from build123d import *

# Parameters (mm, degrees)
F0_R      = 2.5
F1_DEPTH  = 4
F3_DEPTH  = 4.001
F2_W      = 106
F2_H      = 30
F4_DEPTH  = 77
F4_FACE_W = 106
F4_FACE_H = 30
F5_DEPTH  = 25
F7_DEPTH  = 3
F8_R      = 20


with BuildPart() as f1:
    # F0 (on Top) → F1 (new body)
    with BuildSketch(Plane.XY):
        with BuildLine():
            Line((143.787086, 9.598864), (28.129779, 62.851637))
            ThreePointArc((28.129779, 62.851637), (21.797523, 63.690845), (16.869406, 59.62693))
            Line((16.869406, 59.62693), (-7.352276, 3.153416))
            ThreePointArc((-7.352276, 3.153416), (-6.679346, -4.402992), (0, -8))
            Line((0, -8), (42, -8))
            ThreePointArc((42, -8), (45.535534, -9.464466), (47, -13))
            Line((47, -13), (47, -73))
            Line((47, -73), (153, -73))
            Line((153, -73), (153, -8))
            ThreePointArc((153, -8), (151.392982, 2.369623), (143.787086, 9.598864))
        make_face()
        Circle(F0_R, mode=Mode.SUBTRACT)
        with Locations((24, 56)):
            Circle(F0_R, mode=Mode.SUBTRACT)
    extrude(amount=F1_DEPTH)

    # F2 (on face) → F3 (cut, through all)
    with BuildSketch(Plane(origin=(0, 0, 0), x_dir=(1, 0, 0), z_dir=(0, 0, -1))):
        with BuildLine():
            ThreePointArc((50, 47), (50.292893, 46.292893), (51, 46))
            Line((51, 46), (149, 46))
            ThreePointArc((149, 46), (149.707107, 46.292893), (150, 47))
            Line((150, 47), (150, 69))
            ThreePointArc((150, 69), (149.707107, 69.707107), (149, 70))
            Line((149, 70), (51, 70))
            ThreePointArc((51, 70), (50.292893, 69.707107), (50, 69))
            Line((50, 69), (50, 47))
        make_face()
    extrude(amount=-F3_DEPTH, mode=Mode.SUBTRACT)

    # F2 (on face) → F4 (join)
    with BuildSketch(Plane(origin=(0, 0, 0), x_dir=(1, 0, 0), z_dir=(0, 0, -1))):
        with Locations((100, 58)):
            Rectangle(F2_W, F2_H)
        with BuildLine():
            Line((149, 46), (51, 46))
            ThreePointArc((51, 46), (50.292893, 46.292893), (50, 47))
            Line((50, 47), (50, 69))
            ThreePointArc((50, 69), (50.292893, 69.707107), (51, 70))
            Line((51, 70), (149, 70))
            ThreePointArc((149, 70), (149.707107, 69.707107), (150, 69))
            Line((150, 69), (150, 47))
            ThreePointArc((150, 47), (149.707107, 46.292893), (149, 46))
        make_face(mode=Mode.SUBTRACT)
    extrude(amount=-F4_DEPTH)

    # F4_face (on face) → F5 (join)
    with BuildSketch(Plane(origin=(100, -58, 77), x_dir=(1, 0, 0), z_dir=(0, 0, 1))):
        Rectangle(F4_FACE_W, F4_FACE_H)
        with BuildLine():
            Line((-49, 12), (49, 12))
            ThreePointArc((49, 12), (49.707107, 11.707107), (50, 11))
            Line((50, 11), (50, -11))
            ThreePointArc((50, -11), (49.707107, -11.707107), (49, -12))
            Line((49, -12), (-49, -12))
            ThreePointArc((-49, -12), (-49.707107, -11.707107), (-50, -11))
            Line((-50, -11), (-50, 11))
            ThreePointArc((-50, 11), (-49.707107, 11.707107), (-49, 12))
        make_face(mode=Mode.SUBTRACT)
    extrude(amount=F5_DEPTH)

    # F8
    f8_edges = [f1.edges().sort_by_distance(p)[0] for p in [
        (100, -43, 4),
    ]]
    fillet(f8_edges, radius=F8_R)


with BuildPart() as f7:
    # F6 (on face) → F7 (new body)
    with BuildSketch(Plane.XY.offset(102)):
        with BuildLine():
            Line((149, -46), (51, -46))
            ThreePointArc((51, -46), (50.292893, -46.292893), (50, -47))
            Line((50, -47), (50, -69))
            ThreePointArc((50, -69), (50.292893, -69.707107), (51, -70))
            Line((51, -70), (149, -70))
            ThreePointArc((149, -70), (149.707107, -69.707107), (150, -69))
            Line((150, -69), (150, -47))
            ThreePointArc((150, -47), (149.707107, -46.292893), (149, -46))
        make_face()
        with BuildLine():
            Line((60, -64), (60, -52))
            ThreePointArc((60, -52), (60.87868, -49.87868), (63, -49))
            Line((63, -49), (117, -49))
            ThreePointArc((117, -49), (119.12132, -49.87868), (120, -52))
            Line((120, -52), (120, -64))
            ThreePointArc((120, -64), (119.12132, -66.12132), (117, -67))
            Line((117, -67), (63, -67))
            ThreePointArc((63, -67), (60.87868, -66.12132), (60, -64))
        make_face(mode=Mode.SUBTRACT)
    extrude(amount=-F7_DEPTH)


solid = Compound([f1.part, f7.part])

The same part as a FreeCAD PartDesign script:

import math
import FreeCAD as App
import Part
import Sketcher


def edges_at(feature, points):
    """Names of the edges that pass closest to the given points."""
    edges = feature.Shape.Edges
    near = lambda p: min(range(len(edges)), key=lambda i: edges[i].distToShape(Part.Vertex(*p))[0])
    return sorted({f"Edge{near(p) + 1}" for p in points})


def add_polygon(sketch, points):
    """Adds a closed chain of lines whose ends are joined by coincident constraints."""
    first, n = sketch.GeometryCount, len(points)
    for a, b in zip(points, points[1:] + points[:1]):
        sketch.addGeometry(Part.LineSegment(App.Vector(*a, 0), App.Vector(*b, 0)), False)
    for i in range(n):
        sketch.addConstraint(Sketcher.Constraint("Coincident", first + i, 2, first + (i + 1) % n, 1))

doc = App.newDocument("Part")
body = doc.addObject("PartDesign::Body", "Body")

# Sketch on XY plane
sketch1 = body.newObject("Sketcher::SketchObject", "Sketch")
sketch1.AttachmentSupport = (doc.getObject("XY_Plane"), [""])
sketch1.MapMode = "FlatFace"
sketch1.addGeometry([
    Part.LineSegment(App.Vector(143.8, 9.6, 0), App.Vector(28.1, 62.9, 0)),  # 0
    Part.ArcOfCircle(Part.Circle(App.Vector(24, 56, 0), App.Vector(0, 0, 1), 8), math.radians(59), math.radians(153)),  # 1
    Part.LineSegment(App.Vector(16.9, 59.6, 0), App.Vector(-7.4, 3.2, 0)),  # 2
    Part.ArcOfCircle(Part.Circle(App.Vector(0, 0, 0), App.Vector(0, 0, 1), 8), math.radians(157), math.radians(270)),  # 3
    Part.LineSegment(App.Vector(0, -8, 0), App.Vector(42, -8, 0)),  # 4
    Part.ArcOfCircle(Part.Circle(App.Vector(42, -13, 0), App.Vector(0, 0, 1), 5), math.radians(0), math.radians(90)),  # 5
    Part.LineSegment(App.Vector(47, -13, 0), App.Vector(47, -73, 0)),  # 6
    Part.LineSegment(App.Vector(47, -73, 0), App.Vector(153, -73, 0)),  # 7
    Part.LineSegment(App.Vector(153, -73, 0), App.Vector(153, -8, 0)),  # 8
    Part.ArcOfCircle(Part.Circle(App.Vector(137, -5.2, 0), App.Vector(0, 0, 1), 16.3), math.radians(-10), math.radians(65)),  # 9
    Part.Circle(App.Vector(0, 0, 0), App.Vector(0, 0, 1), 2.5),  # 10
    Part.Circle(App.Vector(24, 56, 0), App.Vector(0, 0, 1), 2.5),  # 11
], False)
sketch1.addConstraint([
    Sketcher.Constraint("Coincident", 0, 2, 1, 1),
    Sketcher.Constraint("Coincident", 1, 2, 2, 1),
    Sketcher.Constraint("Tangent", 2, 2, 3, 1),
    Sketcher.Constraint("Tangent", 3, 2, 4, 1),
    Sketcher.Constraint("Tangent", 4, 2, 5, 2),
    Sketcher.Constraint("Tangent", 5, 1, 6, 1),
    Sketcher.Constraint("Coincident", 6, 2, 7, 1),
    Sketcher.Constraint("Coincident", 7, 2, 8, 1),
    Sketcher.Constraint("Coincident", 8, 2, 9, 1),
    Sketcher.Constraint("Tangent", 9, 2, 0, 1),
    Sketcher.Constraint("Horizontal", 4),
    Sketcher.Constraint("Vertical", 6),
    Sketcher.Constraint("Horizontal", 7),
    Sketcher.Constraint("Vertical", 8),
    Sketcher.Constraint("Coincident", 3, 3, -1, 1),
    Sketcher.Constraint("Coincident", 10, 3, -1, 1),
    Sketcher.Constraint("Coincident", 11, 3, 1, 3),
    Sketcher.Constraint("Equal", 1, 3),
    Sketcher.Constraint("Equal", 10, 11),
    Sketcher.Constraint("Horizontal", 4, 2, 8, 2),
    Sketcher.Constraint("Diameter", 10, 5.0),
    Sketcher.Constraint("Radius", 1, 7.999999),
    Sketcher.Constraint("Radius", 5, 5.0),
    Sketcher.Constraint("DistanceX", 4, 1, 4, 2, 42.0),
    Sketcher.Constraint("DistanceX", 7, 1, 7, 2, 106.0),
    Sketcher.Constraint("DistanceY", 6, 2, 6, 1, 60.0),
    Sketcher.Constraint("DistanceX", -1, 1, 1, 3, 24.0),
    Sketcher.Constraint("DistanceY", -1, 1, 1, 3, 56.000001),
    Sketcher.Constraint("Radius", 9, 16.261862),
    Sketcher.Constraint("Distance", 0, 127.3282),
    Sketcher.Constraint("DistanceY", 9, 3, 9, 2, 14.771301),
    Sketcher.Constraint("Distance", 2, 61.44874),
])
pad1 = body.newObject("PartDesign::Pad", "Pad")
pad1.Profile = sketch1
pad1.Length = 4

# Sketch on XY plane
sketch2 = body.newObject("Sketcher::SketchObject", "Sketch001")
sketch2.AttachmentSupport = (doc.getObject("XY_Plane"), [""])
sketch2.MapMode = "FlatFace"
sketch2.addGeometry([
    Part.ArcOfCircle(Part.Circle(App.Vector(51, -47, 0), App.Vector(0, 0, 1), 1), math.radians(90), math.radians(180)),  # 0
    Part.LineSegment(App.Vector(51, -46, 0), App.Vector(149, -46, 0)),  # 1
    Part.ArcOfCircle(Part.Circle(App.Vector(149, -47, 0), App.Vector(0, 0, 1), 1), math.radians(0), math.radians(90)),  # 2
    Part.LineSegment(App.Vector(150, -47, 0), App.Vector(150, -69, 0)),  # 3
    Part.ArcOfCircle(Part.Circle(App.Vector(149, -69, 0), App.Vector(0, 0, 1), 1), math.radians(-90), math.radians(0)),  # 4
    Part.LineSegment(App.Vector(149, -70, 0), App.Vector(51, -70, 0)),  # 5
    Part.ArcOfCircle(Part.Circle(App.Vector(51, -69, 0), App.Vector(0, 0, 1), 1), math.radians(180), math.radians(270)),  # 6
    Part.LineSegment(App.Vector(50, -69, 0), App.Vector(50, -47, 0)),  # 7
], False)
sketch2.addConstraint([
    Sketcher.Constraint("Tangent", 0, 1, 1, 1),
    Sketcher.Constraint("Tangent", 1, 2, 2, 2),
    Sketcher.Constraint("Tangent", 2, 1, 3, 1),
    Sketcher.Constraint("Tangent", 3, 2, 4, 2),
    Sketcher.Constraint("Tangent", 4, 1, 5, 1),
    Sketcher.Constraint("Tangent", 5, 2, 6, 2),
    Sketcher.Constraint("Tangent", 6, 1, 7, 1),
    Sketcher.Constraint("Tangent", 7, 2, 0, 2),
    Sketcher.Constraint("Horizontal", 1),
    Sketcher.Constraint("Vertical", 3),
    Sketcher.Constraint("Horizontal", 5),
    Sketcher.Constraint("Vertical", 7),
    Sketcher.Constraint("Equal", 0, 2),
    Sketcher.Constraint("Equal", 2, 4),
    Sketcher.Constraint("Equal", 4, 6),
    Sketcher.Constraint("Radius", 0, 0.999999),
    Sketcher.Constraint("DistanceX", 1, 1, 1, 2, 98.0),
    Sketcher.Constraint("DistanceY", 3, 2, 3, 1, 22.0),
    Sketcher.Constraint("DistanceX", -1, 1, 0, 3, 50.999999),
    Sketcher.Constraint("DistanceY", 0, 3, -1, 1, 46.999999),
])
pocket1 = body.newObject("PartDesign::Pocket", "Pocket")
pocket1.Profile = sketch2
pocket1.Type = "ThroughAll"
pocket1.Reversed = True

# Sketch on XY plane
sketch3 = body.newObject("Sketcher::SketchObject", "Sketch002")
sketch3.AttachmentSupport = (doc.getObject("XY_Plane"), [""])
sketch3.MapMode = "FlatFace"
add_polygon(sketch3, [(47, -73), (47, -43), (153, -43), (153, -73)])  # lines 0-3
sketch3.addGeometry(Part.ArcOfCircle(Part.Circle(App.Vector(149, -47, 0), App.Vector(0, 0, 1), 1), math.radians(0), math.radians(90)), False)  # 4
sketch3.addGeometry(Part.LineSegment(App.Vector(149, -46, 0), App.Vector(51, -46, 0)), False)  # 5
sketch3.addGeometry(Part.ArcOfCircle(Part.Circle(App.Vector(51, -47, 0), App.Vector(0, 0, 1), 1), math.radians(90), math.radians(180)), False)  # 6
sketch3.addGeometry(Part.LineSegment(App.Vector(50, -47, 0), App.Vector(50, -69, 0)), False)  # 7
sketch3.addGeometry(Part.ArcOfCircle(Part.Circle(App.Vector(51, -69, 0), App.Vector(0, 0, 1), 1), math.radians(180), math.radians(270)), False)  # 8
sketch3.addGeometry(Part.LineSegment(App.Vector(51, -70, 0), App.Vector(149, -70, 0)), False)  # 9
sketch3.addGeometry(Part.ArcOfCircle(Part.Circle(App.Vector(149, -69, 0), App.Vector(0, 0, 1), 1), math.radians(-90), math.radians(0)), False)  # 10
sketch3.addGeometry(Part.LineSegment(App.Vector(150, -69, 0), App.Vector(150, -47, 0)), False)  # 11
sketch3.addConstraint([
    Sketcher.Constraint("Tangent", 4, 2, 5, 1),
    Sketcher.Constraint("Tangent", 5, 2, 6, 1),
    Sketcher.Constraint("Tangent", 6, 2, 7, 1),
    Sketcher.Constraint("Tangent", 7, 2, 8, 1),
    Sketcher.Constraint("Tangent", 8, 2, 9, 1),
    Sketcher.Constraint("Tangent", 9, 2, 10, 1),
    Sketcher.Constraint("Tangent", 10, 2, 11, 1),
    Sketcher.Constraint("Tangent", 11, 2, 4, 1),
    Sketcher.Constraint("Vertical", 0),
    Sketcher.Constraint("Horizontal", 1),
    Sketcher.Constraint("Vertical", 2),
    Sketcher.Constraint("Horizontal", 3),
    Sketcher.Constraint("Horizontal", 5),
    Sketcher.Constraint("Vertical", 7),
    Sketcher.Constraint("Horizontal", 9),
    Sketcher.Constraint("Vertical", 11),
    Sketcher.Constraint("Equal", 4, 6),
    Sketcher.Constraint("Equal", 6, 8),
    Sketcher.Constraint("Equal", 8, 10),
    Sketcher.Constraint("Radius", 4, 0.999999),
    Sketcher.Constraint("DistanceX", 1, 1, 1, 2, 106.0),
    Sketcher.Constraint("DistanceX", 5, 2, 5, 1, 98.0),
    Sketcher.Constraint("DistanceY", 0, 1, 0, 2, 30.0),
    Sketcher.Constraint("DistanceY", 7, 2, 7, 1, 22.0),
    Sketcher.Constraint("DistanceX", -1, 1, 4, 3, 149.000001),
    Sketcher.Constraint("DistanceY", 4, 3, -1, 1, 46.999999),
    Sketcher.Constraint("DistanceX", -1, 1, 0, 2, 47.0),
    Sketcher.Constraint("DistanceY", 0, 2, -1, 1, 43.0),
])
pad2 = body.newObject("PartDesign::Pad", "Pad001")
pad2.Profile = sketch3
pad2.Length = 77

# Sketch on XY plane
sketch4 = body.newObject("Sketcher::SketchObject", "Sketch003")
sketch4.AttachmentSupport = (doc.getObject("XY_Plane"), [""])
sketch4.MapMode = "FlatFace"
sketch4.AttachmentOffset = App.Placement(App.Vector(0, 0, 77), App.Rotation())
add_polygon(sketch4, [(47, -43), (47, -73), (153, -73), (153, -43)])  # lines 0-3
sketch4.addGeometry(Part.ArcOfCircle(Part.Circle(App.Vector(51, -47, 0), App.Vector(0, 0, 1), 1), math.radians(90), math.radians(180)), False)  # 4
sketch4.addGeometry(Part.LineSegment(App.Vector(51, -46, 0), App.Vector(149, -46, 0)), False)  # 5
sketch4.addGeometry(Part.ArcOfCircle(Part.Circle(App.Vector(149, -47, 0), App.Vector(0, 0, 1), 1), math.radians(0), math.radians(90)), False)  # 6
sketch4.addGeometry(Part.LineSegment(App.Vector(150, -47, 0), App.Vector(150, -69, 0)), False)  # 7
sketch4.addGeometry(Part.ArcOfCircle(Part.Circle(App.Vector(149, -69, 0), App.Vector(0, 0, 1), 1), math.radians(-90), math.radians(0)), False)  # 8
sketch4.addGeometry(Part.LineSegment(App.Vector(149, -70, 0), App.Vector(51, -70, 0)), False)  # 9
sketch4.addGeometry(Part.ArcOfCircle(Part.Circle(App.Vector(51, -69, 0), App.Vector(0, 0, 1), 1), math.radians(180), math.radians(270)), False)  # 10
sketch4.addGeometry(Part.LineSegment(App.Vector(50, -69, 0), App.Vector(50, -47, 0)), False)  # 11
sketch4.addConstraint([
    Sketcher.Constraint("Tangent", 4, 1, 5, 1),
    Sketcher.Constraint("Tangent", 5, 2, 6, 2),
    Sketcher.Constraint("Tangent", 6, 1, 7, 1),
    Sketcher.Constraint("Tangent", 7, 2, 8, 2),
    Sketcher.Constraint("Tangent", 8, 1, 9, 1),
    Sketcher.Constraint("Tangent", 9, 2, 10, 2),
    Sketcher.Constraint("Tangent", 10, 1, 11, 1),
    Sketcher.Constraint("Tangent", 11, 2, 4, 2),
    Sketcher.Constraint("Vertical", 0),
    Sketcher.Constraint("Horizontal", 1),
    Sketcher.Constraint("Vertical", 2),
    Sketcher.Constraint("Horizontal", 3),
    Sketcher.Constraint("Horizontal", 5),
    Sketcher.Constraint("Vertical", 7),
    Sketcher.Constraint("Horizontal", 9),
    Sketcher.Constraint("Vertical", 11),
    Sketcher.Constraint("Equal", 4, 6),
    Sketcher.Constraint("Equal", 6, 8),
    Sketcher.Constraint("Equal", 8, 10),
    Sketcher.Constraint("Radius", 4, 0.999999),
    Sketcher.Constraint("DistanceX", 1, 1, 1, 2, 106.0),
    Sketcher.Constraint("DistanceX", 5, 1, 5, 2, 98.0),
    Sketcher.Constraint("DistanceY", 0, 2, 0, 1, 30.0),
    Sketcher.Constraint("DistanceY", 7, 2, 7, 1, 22.0),
    Sketcher.Constraint("DistanceX", -1, 1, 4, 3, 50.999999),
    Sketcher.Constraint("DistanceY", 4, 3, -1, 1, 46.999999),
    Sketcher.Constraint("DistanceX", -1, 1, 0, 2, 47.0),
    Sketcher.Constraint("DistanceY", 0, 2, -1, 1, 73.0),
])
pad3 = body.newObject("PartDesign::Pad", "Pad002")
pad3.Profile = sketch4
pad3.Length = 25
doc.recompute()

fillet = body.newObject("PartDesign::Fillet", "Fillet")
fillet.Base = (pad3, edges_at(pad3, [(100, -43, 4)]))
fillet.Radius = 20
body2 = doc.addObject("PartDesign::Body", "Body001")

# Sketch on XY plane
sketch5 = body2.newObject("Sketcher::SketchObject", "Sketch004")
sketch5.AttachmentSupport = (doc.getObject("XY_Plane001"), [""])
sketch5.MapMode = "FlatFace"
sketch5.AttachmentOffset = App.Placement(App.Vector(0, 0, 102), App.Rotation())
sketch5.addGeometry([
    Part.LineSegment(App.Vector(149, -46, 0), App.Vector(51, -46, 0)),  # 0
    Part.ArcOfCircle(Part.Circle(App.Vector(51, -47, 0), App.Vector(0, 0, 1), 1), math.radians(90), math.radians(180)),  # 1
    Part.LineSegment(App.Vector(50, -47, 0), App.Vector(50, -69, 0)),  # 2
    Part.ArcOfCircle(Part.Circle(App.Vector(51, -69, 0), App.Vector(0, 0, 1), 1), math.radians(180), math.radians(270)),  # 3
    Part.LineSegment(App.Vector(51, -70, 0), App.Vector(149, -70, 0)),  # 4
    Part.ArcOfCircle(Part.Circle(App.Vector(149, -69, 0), App.Vector(0, 0, 1), 1), math.radians(-90), math.radians(0)),  # 5
    Part.LineSegment(App.Vector(150, -69, 0), App.Vector(150, -47, 0)),  # 6
    Part.ArcOfCircle(Part.Circle(App.Vector(149, -47, 0), App.Vector(0, 0, 1), 1), math.radians(0), math.radians(90)),  # 7
    Part.ArcOfCircle(Part.Circle(App.Vector(63, -64, 0), App.Vector(0, 0, 1), 3), math.radians(-180), math.radians(-90)),  # 8
    Part.LineSegment(App.Vector(60, -64, 0), App.Vector(60, -52, 0)),  # 9
    Part.ArcOfCircle(Part.Circle(App.Vector(63, -52, 0), App.Vector(0, 0, 1), 3), math.radians(90), math.radians(180)),  # 10
    Part.LineSegment(App.Vector(63, -49, 0), App.Vector(117, -49, 0)),  # 11
    Part.ArcOfCircle(Part.Circle(App.Vector(117, -52, 0), App.Vector(0, 0, 1), 3), math.radians(0), math.radians(90)),  # 12
    Part.LineSegment(App.Vector(120, -52, 0), App.Vector(120, -64, 0)),  # 13
    Part.ArcOfCircle(Part.Circle(App.Vector(117, -64, 0), App.Vector(0, 0, 1), 3), math.radians(-90), math.radians(0)),  # 14
    Part.LineSegment(App.Vector(117, -67, 0), App.Vector(63, -67, 0)),  # 15
], False)
sketch5.addConstraint([
    Sketcher.Constraint("Tangent", 0, 2, 1, 1),
    Sketcher.Constraint("Tangent", 1, 2, 2, 1),
    Sketcher.Constraint("Tangent", 2, 2, 3, 1),
    Sketcher.Constraint("Tangent", 3, 2, 4, 1),
    Sketcher.Constraint("Tangent", 4, 2, 5, 1),
    Sketcher.Constraint("Tangent", 5, 2, 6, 1),
    Sketcher.Constraint("Tangent", 6, 2, 7, 1),
    Sketcher.Constraint("Tangent", 7, 2, 0, 1),
    Sketcher.Constraint("Tangent", 8, 1, 9, 1),
    Sketcher.Constraint("Tangent", 9, 2, 10, 2),
    Sketcher.Constraint("Tangent", 10, 1, 11, 1),
    Sketcher.Constraint("Tangent", 11, 2, 12, 2),
    Sketcher.Constraint("Tangent", 12, 1, 13, 1),
    Sketcher.Constraint("Tangent", 13, 2, 14, 2),
    Sketcher.Constraint("Tangent", 14, 1, 15, 1),
    Sketcher.Constraint("Tangent", 15, 2, 8, 2),
    Sketcher.Constraint("Horizontal", 0),
    Sketcher.Constraint("Vertical", 2),
    Sketcher.Constraint("Horizontal", 4),
    Sketcher.Constraint("Vertical", 6),
    Sketcher.Constraint("Vertical", 9),
    Sketcher.Constraint("Horizontal", 11),
    Sketcher.Constraint("Vertical", 13),
    Sketcher.Constraint("Horizontal", 15),
    Sketcher.Constraint("Equal", 1, 3),
    Sketcher.Constraint("Equal", 3, 5),
    Sketcher.Constraint("Equal", 5, 7),
    Sketcher.Constraint("Equal", 8, 10),
    Sketcher.Constraint("Equal", 10, 12),
    Sketcher.Constraint("Equal", 12, 14),
    Sketcher.Constraint("Radius", 1, 0.999999),
    Sketcher.Constraint("Radius", 8, 3.000001),
    Sketcher.Constraint("DistanceX", 0, 2, 0, 1, 98.0),
    Sketcher.Constraint("DistanceX", 11, 1, 11, 2, 54.0),
    Sketcher.Constraint("DistanceY", 2, 2, 2, 1, 22.0),
    Sketcher.Constraint("DistanceY", 9, 1, 9, 2, 12.0),
    Sketcher.Constraint("DistanceX", -1, 1, 1, 3, 50.999999),
    Sketcher.Constraint("DistanceY", 1, 3, -1, 1, 46.999999),
    Sketcher.Constraint("DistanceX", -1, 1, 8, 3, 63.000001),
    Sketcher.Constraint("DistanceY", 8, 3, -1, 1, 63.999999),
])
pad4 = body2.newObject("PartDesign::Pad", "Pad003")
pad4.Profile = sketch5
pad4.Length = 3
pad4.Reversed = True

doc.recompute()
